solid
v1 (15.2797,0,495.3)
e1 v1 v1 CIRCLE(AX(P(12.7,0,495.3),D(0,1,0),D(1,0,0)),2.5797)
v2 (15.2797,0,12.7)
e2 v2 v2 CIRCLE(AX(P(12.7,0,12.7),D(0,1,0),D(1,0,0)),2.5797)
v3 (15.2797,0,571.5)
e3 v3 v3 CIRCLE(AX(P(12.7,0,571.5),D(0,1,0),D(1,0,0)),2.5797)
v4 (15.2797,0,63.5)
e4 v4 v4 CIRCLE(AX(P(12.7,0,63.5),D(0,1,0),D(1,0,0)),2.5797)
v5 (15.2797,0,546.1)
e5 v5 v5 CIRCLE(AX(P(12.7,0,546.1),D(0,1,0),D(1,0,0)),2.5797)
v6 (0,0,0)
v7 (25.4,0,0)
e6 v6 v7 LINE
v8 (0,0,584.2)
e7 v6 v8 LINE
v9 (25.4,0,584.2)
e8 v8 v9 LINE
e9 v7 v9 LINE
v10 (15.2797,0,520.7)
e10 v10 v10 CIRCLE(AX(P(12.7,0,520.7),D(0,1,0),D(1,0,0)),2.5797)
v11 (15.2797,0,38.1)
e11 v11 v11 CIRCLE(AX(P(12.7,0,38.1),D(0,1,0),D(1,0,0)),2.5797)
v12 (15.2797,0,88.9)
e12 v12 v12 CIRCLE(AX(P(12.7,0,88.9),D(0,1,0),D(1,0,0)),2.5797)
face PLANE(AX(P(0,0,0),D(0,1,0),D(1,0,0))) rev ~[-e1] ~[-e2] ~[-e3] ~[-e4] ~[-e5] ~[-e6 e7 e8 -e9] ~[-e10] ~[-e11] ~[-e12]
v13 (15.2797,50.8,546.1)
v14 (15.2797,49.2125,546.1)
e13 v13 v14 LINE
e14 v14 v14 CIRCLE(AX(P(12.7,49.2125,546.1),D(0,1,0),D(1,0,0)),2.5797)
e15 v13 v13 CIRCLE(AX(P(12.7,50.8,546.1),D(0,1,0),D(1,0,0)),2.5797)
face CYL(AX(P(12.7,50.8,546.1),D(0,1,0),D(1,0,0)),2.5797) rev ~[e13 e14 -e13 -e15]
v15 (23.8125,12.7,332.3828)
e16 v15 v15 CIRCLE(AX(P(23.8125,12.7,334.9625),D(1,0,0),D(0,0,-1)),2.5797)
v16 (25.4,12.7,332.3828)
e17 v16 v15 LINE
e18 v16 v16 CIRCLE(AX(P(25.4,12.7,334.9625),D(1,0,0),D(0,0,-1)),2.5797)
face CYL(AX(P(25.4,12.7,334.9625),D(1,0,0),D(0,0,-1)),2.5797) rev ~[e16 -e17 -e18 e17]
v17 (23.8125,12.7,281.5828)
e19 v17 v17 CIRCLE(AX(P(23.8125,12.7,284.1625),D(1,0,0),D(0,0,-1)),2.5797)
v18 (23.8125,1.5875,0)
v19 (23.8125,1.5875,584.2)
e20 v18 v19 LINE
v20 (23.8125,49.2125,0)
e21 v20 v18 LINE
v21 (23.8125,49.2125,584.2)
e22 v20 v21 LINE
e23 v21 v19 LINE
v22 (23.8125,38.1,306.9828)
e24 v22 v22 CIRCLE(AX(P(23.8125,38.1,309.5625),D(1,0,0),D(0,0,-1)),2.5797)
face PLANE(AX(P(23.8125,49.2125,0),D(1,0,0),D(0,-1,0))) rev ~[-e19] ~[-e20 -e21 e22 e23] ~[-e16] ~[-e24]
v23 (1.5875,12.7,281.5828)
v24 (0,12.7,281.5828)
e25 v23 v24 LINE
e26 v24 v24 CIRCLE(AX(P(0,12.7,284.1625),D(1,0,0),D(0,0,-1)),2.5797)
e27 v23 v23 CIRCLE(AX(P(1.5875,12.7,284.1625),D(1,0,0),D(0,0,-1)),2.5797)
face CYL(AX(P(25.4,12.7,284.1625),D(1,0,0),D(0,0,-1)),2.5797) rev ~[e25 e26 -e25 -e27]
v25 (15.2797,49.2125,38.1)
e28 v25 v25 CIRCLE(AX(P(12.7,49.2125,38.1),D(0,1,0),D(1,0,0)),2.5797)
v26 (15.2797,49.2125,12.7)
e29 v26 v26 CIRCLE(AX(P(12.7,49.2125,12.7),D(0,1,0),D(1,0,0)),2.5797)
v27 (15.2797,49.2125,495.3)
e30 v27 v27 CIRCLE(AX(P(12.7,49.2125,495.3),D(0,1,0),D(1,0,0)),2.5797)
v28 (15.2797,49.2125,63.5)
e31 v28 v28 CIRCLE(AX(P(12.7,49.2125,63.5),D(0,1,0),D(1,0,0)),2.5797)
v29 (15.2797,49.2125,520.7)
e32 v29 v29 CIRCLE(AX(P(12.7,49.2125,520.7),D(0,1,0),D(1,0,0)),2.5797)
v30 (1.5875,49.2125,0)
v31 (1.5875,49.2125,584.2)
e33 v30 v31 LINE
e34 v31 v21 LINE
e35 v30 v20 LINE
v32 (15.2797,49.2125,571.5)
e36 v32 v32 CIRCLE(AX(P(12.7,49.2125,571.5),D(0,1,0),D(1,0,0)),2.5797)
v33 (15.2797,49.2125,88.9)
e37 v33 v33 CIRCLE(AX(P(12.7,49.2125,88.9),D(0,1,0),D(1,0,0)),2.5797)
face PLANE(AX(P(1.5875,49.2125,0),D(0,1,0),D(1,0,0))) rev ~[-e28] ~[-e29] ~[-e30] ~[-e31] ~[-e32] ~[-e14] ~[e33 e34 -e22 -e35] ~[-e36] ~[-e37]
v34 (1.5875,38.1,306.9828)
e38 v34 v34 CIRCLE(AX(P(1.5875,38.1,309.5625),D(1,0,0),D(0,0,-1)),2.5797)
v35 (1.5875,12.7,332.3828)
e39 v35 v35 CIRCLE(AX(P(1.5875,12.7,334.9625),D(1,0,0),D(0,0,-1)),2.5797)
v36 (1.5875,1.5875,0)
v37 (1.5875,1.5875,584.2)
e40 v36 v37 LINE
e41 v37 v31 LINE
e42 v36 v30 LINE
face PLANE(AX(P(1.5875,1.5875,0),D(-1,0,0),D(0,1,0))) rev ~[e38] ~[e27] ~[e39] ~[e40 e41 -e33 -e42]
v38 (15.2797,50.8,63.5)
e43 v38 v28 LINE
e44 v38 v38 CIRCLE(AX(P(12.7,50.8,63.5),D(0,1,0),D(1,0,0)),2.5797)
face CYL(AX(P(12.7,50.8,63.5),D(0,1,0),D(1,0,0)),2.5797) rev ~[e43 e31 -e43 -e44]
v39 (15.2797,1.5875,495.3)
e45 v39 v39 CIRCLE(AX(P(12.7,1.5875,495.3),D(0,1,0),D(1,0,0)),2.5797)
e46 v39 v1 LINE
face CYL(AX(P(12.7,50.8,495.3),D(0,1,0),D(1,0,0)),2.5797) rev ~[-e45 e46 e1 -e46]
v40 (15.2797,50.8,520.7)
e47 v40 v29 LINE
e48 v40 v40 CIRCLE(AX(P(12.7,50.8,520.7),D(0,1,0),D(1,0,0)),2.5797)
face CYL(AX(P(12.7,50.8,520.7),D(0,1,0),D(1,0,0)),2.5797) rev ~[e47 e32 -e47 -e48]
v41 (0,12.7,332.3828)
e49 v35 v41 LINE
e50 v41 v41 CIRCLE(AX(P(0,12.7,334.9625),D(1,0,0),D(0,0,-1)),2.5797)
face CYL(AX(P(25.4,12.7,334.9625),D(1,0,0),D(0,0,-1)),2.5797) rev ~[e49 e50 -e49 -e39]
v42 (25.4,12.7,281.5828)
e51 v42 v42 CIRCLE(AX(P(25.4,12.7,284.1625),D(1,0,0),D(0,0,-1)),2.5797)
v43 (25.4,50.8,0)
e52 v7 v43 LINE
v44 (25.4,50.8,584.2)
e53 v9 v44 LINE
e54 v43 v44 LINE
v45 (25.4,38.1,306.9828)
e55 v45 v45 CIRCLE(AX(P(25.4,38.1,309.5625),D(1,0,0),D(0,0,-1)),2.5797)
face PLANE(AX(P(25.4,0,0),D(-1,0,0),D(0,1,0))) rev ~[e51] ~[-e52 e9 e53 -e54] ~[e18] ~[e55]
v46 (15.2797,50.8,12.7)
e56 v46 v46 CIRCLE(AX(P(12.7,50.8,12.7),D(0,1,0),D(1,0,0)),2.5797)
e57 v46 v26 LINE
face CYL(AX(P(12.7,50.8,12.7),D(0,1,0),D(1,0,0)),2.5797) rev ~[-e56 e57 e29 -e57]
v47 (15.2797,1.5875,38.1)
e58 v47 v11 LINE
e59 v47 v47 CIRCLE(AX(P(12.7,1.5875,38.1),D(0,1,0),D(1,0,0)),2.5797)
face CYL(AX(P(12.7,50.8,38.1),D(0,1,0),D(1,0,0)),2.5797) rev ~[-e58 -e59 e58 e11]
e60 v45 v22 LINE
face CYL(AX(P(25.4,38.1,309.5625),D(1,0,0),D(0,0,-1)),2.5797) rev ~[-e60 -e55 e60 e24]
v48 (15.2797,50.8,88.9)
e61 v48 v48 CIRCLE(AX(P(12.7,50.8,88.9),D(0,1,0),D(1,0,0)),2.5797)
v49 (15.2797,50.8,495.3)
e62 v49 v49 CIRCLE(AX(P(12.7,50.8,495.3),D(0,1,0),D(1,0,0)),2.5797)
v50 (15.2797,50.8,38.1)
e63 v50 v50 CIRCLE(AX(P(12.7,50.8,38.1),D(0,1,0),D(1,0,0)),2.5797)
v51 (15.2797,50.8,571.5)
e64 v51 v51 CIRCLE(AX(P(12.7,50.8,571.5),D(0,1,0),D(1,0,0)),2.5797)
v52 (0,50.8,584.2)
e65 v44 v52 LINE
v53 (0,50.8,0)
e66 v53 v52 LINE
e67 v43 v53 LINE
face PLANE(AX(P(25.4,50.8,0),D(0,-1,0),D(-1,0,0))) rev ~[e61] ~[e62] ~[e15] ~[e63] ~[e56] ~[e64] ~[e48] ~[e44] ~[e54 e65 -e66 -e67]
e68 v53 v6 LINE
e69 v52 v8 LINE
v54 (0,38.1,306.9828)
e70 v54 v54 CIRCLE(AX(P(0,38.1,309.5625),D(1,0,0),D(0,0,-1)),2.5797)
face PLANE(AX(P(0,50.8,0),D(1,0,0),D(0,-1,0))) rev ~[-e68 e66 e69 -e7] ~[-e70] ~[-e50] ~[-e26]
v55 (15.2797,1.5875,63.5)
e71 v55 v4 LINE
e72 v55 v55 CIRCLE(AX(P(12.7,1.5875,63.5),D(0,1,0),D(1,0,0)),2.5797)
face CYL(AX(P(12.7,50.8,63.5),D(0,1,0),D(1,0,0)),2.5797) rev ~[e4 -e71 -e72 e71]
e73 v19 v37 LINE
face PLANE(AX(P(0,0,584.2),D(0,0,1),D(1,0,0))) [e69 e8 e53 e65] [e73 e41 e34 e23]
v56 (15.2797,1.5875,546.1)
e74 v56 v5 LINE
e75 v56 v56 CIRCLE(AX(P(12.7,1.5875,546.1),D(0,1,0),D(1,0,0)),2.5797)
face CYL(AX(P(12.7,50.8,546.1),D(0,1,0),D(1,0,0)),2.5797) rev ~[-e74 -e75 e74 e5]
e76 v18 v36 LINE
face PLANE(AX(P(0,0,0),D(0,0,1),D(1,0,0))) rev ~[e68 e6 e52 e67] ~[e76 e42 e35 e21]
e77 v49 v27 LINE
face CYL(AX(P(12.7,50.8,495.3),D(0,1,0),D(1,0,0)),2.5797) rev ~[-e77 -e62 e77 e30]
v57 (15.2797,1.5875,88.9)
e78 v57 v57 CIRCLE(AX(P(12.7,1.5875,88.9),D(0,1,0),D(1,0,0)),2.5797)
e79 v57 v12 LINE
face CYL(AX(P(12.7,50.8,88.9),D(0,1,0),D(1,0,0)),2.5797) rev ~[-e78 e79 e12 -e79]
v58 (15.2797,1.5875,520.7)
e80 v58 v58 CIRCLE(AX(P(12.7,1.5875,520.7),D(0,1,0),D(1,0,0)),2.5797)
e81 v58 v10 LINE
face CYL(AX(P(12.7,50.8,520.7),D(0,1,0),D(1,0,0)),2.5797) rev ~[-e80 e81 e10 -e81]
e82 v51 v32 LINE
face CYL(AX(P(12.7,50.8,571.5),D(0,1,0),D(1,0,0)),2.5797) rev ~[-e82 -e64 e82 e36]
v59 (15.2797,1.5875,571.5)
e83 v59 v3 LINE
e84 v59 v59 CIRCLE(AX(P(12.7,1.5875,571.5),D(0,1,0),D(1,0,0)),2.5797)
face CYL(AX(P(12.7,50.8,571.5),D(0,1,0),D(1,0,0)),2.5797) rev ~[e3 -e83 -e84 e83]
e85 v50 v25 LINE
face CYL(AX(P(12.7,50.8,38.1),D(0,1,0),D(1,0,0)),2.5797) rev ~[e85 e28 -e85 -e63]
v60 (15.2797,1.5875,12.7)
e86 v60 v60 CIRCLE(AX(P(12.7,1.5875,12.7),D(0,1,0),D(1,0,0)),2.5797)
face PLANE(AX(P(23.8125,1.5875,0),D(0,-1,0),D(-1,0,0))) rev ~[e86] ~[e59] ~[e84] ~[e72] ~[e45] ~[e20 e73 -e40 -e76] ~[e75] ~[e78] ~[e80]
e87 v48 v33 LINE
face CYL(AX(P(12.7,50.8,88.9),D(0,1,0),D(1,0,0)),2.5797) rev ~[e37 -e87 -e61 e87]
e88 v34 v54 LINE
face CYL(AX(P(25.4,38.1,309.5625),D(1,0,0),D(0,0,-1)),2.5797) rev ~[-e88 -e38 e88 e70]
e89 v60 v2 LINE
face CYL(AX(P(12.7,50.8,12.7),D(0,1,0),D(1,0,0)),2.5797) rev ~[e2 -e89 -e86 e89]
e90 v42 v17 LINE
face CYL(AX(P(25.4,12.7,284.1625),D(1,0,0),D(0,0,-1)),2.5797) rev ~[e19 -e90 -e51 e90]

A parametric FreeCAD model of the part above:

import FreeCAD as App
import Part
import Sketcher
from FreeCAD import Vector
Q = App.Units.Quantity

doc = App.newDocument("Part")
params = doc.addObject("Spreadsheet::Sheet", "Params")
for row, (alias, value) in enumerate([
    ("sketch1_width", "1 in"),
    ("sketch1_height", "2 in"),
    ("pad1_length", "23 in"),
    ("sketch2_diameter", "0.203126 in"),
    ("pocket1_length", "28 in"),
    ("sketch3_diameter", "0.203126 in"),
    ("pocket2_length", "2.6875 in"),
    ("sketch4_diameter", "0.203126 in"),
    ("pocket3_length", "1 in"),
    ("sketch5_diameter", "0.203126 in"),
    ("pocket4_length", "3.0625 in"),
], start=1):
    params.set(f"A{row}", alias)
    params.set(f"B{row}", "=" + value)
    params.setAlias(f"B{row}", alias)

body = doc.addObject("PartDesign::Body", "Body")

sketch1 = body.newObject("Sketcher::SketchObject", "Sketch")
sketch1.AttachmentSupport = (doc.getObject("XY_Plane"), [""])
sketch1.MapMode = "FlatFace"
sketch1.addGeometry(Part.LineSegment(Vector(0, 51, 0), Vector(0, 0, 0)), False)
sketch1.addGeometry(Part.LineSegment(Vector(0, 0, 0), Vector(25, 0, 0)), False)
sketch1.addGeometry(Part.LineSegment(Vector(25, 0, 0), Vector(25, 51, 0)), False)
sketch1.addGeometry(Part.LineSegment(Vector(25, 51, 0), Vector(0, 51, 0)), False)
sketch1.addGeometry(Part.LineSegment(Vector(24, 49, 0), Vector(24, 2, 0)), False)
sketch1.addGeometry(Part.LineSegment(Vector(24, 2, 0), Vector(2, 2, 0)), False)
sketch1.addGeometry(Part.LineSegment(Vector(2, 2, 0), Vector(2, 49, 0)), False)
sketch1.addGeometry(Part.LineSegment(Vector(2, 49, 0), Vector(24, 49, 0)), False)
sketch1.addConstraint(Sketcher.Constraint("Coincident", 0, 2, 1, 1))
sketch1.addConstraint(Sketcher.Constraint("Coincident", 1, 2, 2, 1))
sketch1.addConstraint(Sketcher.Constraint("Coincident", 2, 2, 3, 1))
sketch1.addConstraint(Sketcher.Constraint("Coincident", 3, 2, 0, 1))
sketch1.addConstraint(Sketcher.Constraint("Coincident", 4, 2, 5, 1))
sketch1.addConstraint(Sketcher.Constraint("Coincident", 5, 2, 6, 1))
sketch1.addConstraint(Sketcher.Constraint("Coincident", 6, 2, 7, 1))
sketch1.addConstraint(Sketcher.Constraint("Coincident", 7, 2, 4, 1))
sketch1.addConstraint(Sketcher.Constraint("Vertical", 0))
sketch1.addConstraint(Sketcher.Constraint("Horizontal", 1))
sketch1.addConstraint(Sketcher.Constraint("Vertical", 2))
sketch1.addConstraint(Sketcher.Constraint("Horizontal", 3))
sketch1.addConstraint(Sketcher.Constraint("Vertical", 4))
sketch1.addConstraint(Sketcher.Constraint("Horizontal", 5))
sketch1.addConstraint(Sketcher.Constraint("Vertical", 6))
sketch1.addConstraint(Sketcher.Constraint("Horizontal", 7))
sketch1.addConstraint(Sketcher.Constraint("Coincident", 0, 2, -1, 1))
sketch1.addConstraint(Sketcher.Constraint("DistanceX", 1, 1, 1, 2, Q("1 in")))
sketch1.addConstraint(Sketcher.Constraint("DistanceY", 0, 2, 0, 1, Q("2 in")))
sketch1.addConstraint(Sketcher.Constraint("DistanceY", -1, 1, 4, 2, Q("0.0625 in")))
sketch1.addConstraint(Sketcher.Constraint("DistanceX", -1, 1, 5, 2, Q("0.0625 in")))
sketch1.addConstraint(Sketcher.Constraint("DistanceX", 4, 2, 1, 2, Q("0.0625 in")))
sketch1.addConstraint(Sketcher.Constraint("DistanceY", 6, 2, 3, 2, Q("0.0625 in")))
sketch1.setExpression("Constraints[17]", "Params.sketch1_width")
sketch1.setExpression("Constraints[18]", "Params.sketch1_height")
pad1 = body.newObject("PartDesign::Pad", "Pad")
pad1.Profile = sketch1
pad1.setExpression("Length", "Params.pad1_length")

sketch2 = body.newObject("Sketcher::SketchObject", "Sketch001")
sketch2.AttachmentSupport = (doc.getObject("XZ_Plane"), [""])
sketch2.MapMode = "FlatFace"
sketch2.AttachmentOffset = App.Placement(Vector(0, 0, -2 * 25.4), App.Rotation())
sketch2.addGeometry(Part.Circle(Vector(12.7, 571.5, 0), Vector(0, 0, 1), 2.6), False)
sketch2.addGeometry(Part.Circle(Vector(12.7, 12.7, 0), Vector(0, 0, 1), 2.6), False)
sketch2.addConstraint(Sketcher.Constraint("Equal", 0, 1))
sketch2.addConstraint(Sketcher.Constraint("Vertical", 0, 3, 1, 3))
sketch2.addConstraint(Sketcher.Constraint("Diameter", 0, Q("0.203126 in")))
sketch2.addConstraint(Sketcher.Constraint("DistanceX", -1, 1, 0, 3, Q("0.5 in")))
sketch2.addConstraint(Sketcher.Constraint("DistanceY", -1, 1, 1, 3, Q("0.5 in")))
sketch2.addConstraint(Sketcher.Constraint("DistanceY", 1, 3, 0, 3, Q("22 in")))
sketch2.setExpression("Constraints[2]", "Params.sketch2_diameter")
pocket1 = body.newObject("PartDesign::Pocket", "Pocket")
pocket1.Profile = sketch2
pocket1.setExpression("Length", "Params.pocket1_length")
pocket1.Reversed = True

sketch3 = body.newObject("Sketcher::SketchObject", "Sketch002")
sketch3.AttachmentSupport = (doc.getObject("XZ_Plane"), [""])
sketch3.MapMode = "FlatFace"
sketch3.AttachmentOffset = App.Placement(Vector(0, 0, -2 * 25.4), App.Rotation())
sketch3.addGeometry(Part.Circle(Vector(12.7, 38.1, 0), Vector(0, 0, 1), 2.6), False)
sketch3.addGeometry(Part.Circle(Vector(12.7, 546.1, 0), Vector(0, 0, 1), 2.6), False)
sketch3.addConstraint(Sketcher.Constraint("Equal", 0, 1))
sketch3.addConstraint(Sketcher.Constraint("Vertical", 0, 3, 1, 3))
sketch3.addConstraint(Sketcher.Constraint("Diameter", 0, Q("0.203126 in")))
sketch3.addConstraint(Sketcher.Constraint("DistanceY", 0, 3, 1, 3, Q("20 in")))
sketch3.addConstraint(Sketcher.Constraint("DistanceX", -1, 1, 0, 3, Q("0.5 in")))
sketch3.addConstraint(Sketcher.Constraint("DistanceY", -1, 1, 0, 3, Q("1.5 in")))
sketch3.setExpression("Constraints[2]", "Params.sketch3_diameter")
pocket2 = body.newObject("PartDesign::Pocket", "Pocket001")
pocket2.Profile = sketch3
pocket2.setExpression("Length", "Params.pocket2_length")
pocket2.Reversed = True

sketch4 = body.newObject("Sketcher::SketchObject", "Sketch003")
sketch4.AttachmentSupport = (doc.getObject("YZ_Plane"), [""])
sketch4.MapMode = "FlatFace"
sketch4.AttachmentOffset = App.Placement(Vector(0, 0, 1 * 25.4), App.Rotation())
sketch4.addGeometry(Part.Circle(Vector(12.7, 284.2, 0), Vector(0, 0, 1), 2.6), False)
sketch4.addGeometry(Part.Circle(Vector(12.7, 335, 0), Vector(0, 0, 1), 2.6), False)
sketch4.addGeometry(Part.Circle(Vector(38.1, 309.6, 0), Vector(0, 0, 1), 2.6), False)
sketch4.addConstraint(Sketcher.Constraint("Equal", 0, 1))
sketch4.addConstraint(Sketcher.Constraint("Equal", 1, 2))
sketch4.addConstraint(Sketcher.Constraint("Vertical", 0, 3, 1, 3))
sketch4.addConstraint(Sketcher.Constraint("Diameter", 0, Q("0.203126 in")))
sketch4.addConstraint(Sketcher.Constraint("DistanceY", 0, 3, 1, 3, Q("2 in")))
sketch4.addConstraint(Sketcher.Constraint("DistanceX", 0, 3, 2, 3, Q("1 in")))
sketch4.addConstraint(Sketcher.Constraint("DistanceY", 0, 3, 2, 3, Q("1 in")))
sketch4.addConstraint(Sketcher.Constraint("DistanceX", -1, 1, 0, 3, Q("0.5 in")))
sketch4.addConstraint(Sketcher.Constraint("DistanceY", -1, 1, 0, 3, Q("11.1875 in")))
sketch4.setExpression("Constraints[3]", "Params.sketch4_diameter")
pocket3 = body.newObject("PartDesign::Pocket", "Pocket002")
pocket3.Profile = sketch4
pocket3.setExpression("Length", "Params.pocket3_length")

sketch5 = body.newObject("Sketcher::SketchObject", "Sketch004")
sketch5.AttachmentSupport = (doc.getObject("XZ_Plane"), [""])
sketch5.MapMode = "FlatFace"
sketch5.AttachmentOffset = App.Placement(Vector(0, 0, -2 * 25.4), App.Rotation())
sketch5.addGeometry(Part.Circle(Vector(12.7, 520.7, 0), Vector(0, 0, 1), 2.6), False)
sketch5.addGeometry(Part.Circle(Vector(12.7, 63.5, 0), Vector(0, 0, 1), 2.6), False)
sketch5.addGeometry(Part.Circle(Vector(12.7, 88.9, 0), Vector(0, 0, 1), 2.6), False)
sketch5.addGeometry(Part.Circle(Vector(12.7, 495.3, 0), Vector(0, 0, 1), 2.6), False)
sketch5.addConstraint(Sketcher.Constraint("Equal", 0, 1))
sketch5.addConstraint(Sketcher.Constraint("Equal", 1, 2))
sketch5.addConstraint(Sketcher.Constraint("Equal", 2, 3))
sketch5.addConstraint(Sketcher.Constraint("Vertical", 0, 3, 1, 3))
sketch5.addConstraint(Sketcher.Constraint("Vertical", 1, 3, 2, 3))
sketch5.addConstraint(Sketcher.Constraint("Vertical", 2, 3, 3, 3))
sketch5.addConstraint(Sketcher.Constraint("DistanceY", 1, 3, 2, 3, Q("1 in")))
sketch5.addConstraint(Sketcher.Constraint("DistanceY", 3, 3, 0, 3, Q("1 in")))
sketch5.addConstraint(Sketcher.Constraint("Diameter", 0, Q("0.203126 in")))
sketch5.addConstraint(Sketcher.Constraint("DistanceY", 1, 3, 0, 3, Q("18 in")))
sketch5.addConstraint(Sketcher.Constraint("DistanceX", -1, 1, 0, 3, Q("0.5 in")))
sketch5.addConstraint(Sketcher.Constraint("DistanceY", -1, 1, 0, 3, Q("20.5 in")))
sketch5.setExpression("Constraints[8]", "Params.sketch5_diameter")
pocket4 = body.newObject("PartDesign::Pocket", "Pocket003")
pocket4.Profile = sketch5
pocket4.setExpression("Length", "Params.pocket4_length")
pocket4.Reversed = True

doc.recompute()
